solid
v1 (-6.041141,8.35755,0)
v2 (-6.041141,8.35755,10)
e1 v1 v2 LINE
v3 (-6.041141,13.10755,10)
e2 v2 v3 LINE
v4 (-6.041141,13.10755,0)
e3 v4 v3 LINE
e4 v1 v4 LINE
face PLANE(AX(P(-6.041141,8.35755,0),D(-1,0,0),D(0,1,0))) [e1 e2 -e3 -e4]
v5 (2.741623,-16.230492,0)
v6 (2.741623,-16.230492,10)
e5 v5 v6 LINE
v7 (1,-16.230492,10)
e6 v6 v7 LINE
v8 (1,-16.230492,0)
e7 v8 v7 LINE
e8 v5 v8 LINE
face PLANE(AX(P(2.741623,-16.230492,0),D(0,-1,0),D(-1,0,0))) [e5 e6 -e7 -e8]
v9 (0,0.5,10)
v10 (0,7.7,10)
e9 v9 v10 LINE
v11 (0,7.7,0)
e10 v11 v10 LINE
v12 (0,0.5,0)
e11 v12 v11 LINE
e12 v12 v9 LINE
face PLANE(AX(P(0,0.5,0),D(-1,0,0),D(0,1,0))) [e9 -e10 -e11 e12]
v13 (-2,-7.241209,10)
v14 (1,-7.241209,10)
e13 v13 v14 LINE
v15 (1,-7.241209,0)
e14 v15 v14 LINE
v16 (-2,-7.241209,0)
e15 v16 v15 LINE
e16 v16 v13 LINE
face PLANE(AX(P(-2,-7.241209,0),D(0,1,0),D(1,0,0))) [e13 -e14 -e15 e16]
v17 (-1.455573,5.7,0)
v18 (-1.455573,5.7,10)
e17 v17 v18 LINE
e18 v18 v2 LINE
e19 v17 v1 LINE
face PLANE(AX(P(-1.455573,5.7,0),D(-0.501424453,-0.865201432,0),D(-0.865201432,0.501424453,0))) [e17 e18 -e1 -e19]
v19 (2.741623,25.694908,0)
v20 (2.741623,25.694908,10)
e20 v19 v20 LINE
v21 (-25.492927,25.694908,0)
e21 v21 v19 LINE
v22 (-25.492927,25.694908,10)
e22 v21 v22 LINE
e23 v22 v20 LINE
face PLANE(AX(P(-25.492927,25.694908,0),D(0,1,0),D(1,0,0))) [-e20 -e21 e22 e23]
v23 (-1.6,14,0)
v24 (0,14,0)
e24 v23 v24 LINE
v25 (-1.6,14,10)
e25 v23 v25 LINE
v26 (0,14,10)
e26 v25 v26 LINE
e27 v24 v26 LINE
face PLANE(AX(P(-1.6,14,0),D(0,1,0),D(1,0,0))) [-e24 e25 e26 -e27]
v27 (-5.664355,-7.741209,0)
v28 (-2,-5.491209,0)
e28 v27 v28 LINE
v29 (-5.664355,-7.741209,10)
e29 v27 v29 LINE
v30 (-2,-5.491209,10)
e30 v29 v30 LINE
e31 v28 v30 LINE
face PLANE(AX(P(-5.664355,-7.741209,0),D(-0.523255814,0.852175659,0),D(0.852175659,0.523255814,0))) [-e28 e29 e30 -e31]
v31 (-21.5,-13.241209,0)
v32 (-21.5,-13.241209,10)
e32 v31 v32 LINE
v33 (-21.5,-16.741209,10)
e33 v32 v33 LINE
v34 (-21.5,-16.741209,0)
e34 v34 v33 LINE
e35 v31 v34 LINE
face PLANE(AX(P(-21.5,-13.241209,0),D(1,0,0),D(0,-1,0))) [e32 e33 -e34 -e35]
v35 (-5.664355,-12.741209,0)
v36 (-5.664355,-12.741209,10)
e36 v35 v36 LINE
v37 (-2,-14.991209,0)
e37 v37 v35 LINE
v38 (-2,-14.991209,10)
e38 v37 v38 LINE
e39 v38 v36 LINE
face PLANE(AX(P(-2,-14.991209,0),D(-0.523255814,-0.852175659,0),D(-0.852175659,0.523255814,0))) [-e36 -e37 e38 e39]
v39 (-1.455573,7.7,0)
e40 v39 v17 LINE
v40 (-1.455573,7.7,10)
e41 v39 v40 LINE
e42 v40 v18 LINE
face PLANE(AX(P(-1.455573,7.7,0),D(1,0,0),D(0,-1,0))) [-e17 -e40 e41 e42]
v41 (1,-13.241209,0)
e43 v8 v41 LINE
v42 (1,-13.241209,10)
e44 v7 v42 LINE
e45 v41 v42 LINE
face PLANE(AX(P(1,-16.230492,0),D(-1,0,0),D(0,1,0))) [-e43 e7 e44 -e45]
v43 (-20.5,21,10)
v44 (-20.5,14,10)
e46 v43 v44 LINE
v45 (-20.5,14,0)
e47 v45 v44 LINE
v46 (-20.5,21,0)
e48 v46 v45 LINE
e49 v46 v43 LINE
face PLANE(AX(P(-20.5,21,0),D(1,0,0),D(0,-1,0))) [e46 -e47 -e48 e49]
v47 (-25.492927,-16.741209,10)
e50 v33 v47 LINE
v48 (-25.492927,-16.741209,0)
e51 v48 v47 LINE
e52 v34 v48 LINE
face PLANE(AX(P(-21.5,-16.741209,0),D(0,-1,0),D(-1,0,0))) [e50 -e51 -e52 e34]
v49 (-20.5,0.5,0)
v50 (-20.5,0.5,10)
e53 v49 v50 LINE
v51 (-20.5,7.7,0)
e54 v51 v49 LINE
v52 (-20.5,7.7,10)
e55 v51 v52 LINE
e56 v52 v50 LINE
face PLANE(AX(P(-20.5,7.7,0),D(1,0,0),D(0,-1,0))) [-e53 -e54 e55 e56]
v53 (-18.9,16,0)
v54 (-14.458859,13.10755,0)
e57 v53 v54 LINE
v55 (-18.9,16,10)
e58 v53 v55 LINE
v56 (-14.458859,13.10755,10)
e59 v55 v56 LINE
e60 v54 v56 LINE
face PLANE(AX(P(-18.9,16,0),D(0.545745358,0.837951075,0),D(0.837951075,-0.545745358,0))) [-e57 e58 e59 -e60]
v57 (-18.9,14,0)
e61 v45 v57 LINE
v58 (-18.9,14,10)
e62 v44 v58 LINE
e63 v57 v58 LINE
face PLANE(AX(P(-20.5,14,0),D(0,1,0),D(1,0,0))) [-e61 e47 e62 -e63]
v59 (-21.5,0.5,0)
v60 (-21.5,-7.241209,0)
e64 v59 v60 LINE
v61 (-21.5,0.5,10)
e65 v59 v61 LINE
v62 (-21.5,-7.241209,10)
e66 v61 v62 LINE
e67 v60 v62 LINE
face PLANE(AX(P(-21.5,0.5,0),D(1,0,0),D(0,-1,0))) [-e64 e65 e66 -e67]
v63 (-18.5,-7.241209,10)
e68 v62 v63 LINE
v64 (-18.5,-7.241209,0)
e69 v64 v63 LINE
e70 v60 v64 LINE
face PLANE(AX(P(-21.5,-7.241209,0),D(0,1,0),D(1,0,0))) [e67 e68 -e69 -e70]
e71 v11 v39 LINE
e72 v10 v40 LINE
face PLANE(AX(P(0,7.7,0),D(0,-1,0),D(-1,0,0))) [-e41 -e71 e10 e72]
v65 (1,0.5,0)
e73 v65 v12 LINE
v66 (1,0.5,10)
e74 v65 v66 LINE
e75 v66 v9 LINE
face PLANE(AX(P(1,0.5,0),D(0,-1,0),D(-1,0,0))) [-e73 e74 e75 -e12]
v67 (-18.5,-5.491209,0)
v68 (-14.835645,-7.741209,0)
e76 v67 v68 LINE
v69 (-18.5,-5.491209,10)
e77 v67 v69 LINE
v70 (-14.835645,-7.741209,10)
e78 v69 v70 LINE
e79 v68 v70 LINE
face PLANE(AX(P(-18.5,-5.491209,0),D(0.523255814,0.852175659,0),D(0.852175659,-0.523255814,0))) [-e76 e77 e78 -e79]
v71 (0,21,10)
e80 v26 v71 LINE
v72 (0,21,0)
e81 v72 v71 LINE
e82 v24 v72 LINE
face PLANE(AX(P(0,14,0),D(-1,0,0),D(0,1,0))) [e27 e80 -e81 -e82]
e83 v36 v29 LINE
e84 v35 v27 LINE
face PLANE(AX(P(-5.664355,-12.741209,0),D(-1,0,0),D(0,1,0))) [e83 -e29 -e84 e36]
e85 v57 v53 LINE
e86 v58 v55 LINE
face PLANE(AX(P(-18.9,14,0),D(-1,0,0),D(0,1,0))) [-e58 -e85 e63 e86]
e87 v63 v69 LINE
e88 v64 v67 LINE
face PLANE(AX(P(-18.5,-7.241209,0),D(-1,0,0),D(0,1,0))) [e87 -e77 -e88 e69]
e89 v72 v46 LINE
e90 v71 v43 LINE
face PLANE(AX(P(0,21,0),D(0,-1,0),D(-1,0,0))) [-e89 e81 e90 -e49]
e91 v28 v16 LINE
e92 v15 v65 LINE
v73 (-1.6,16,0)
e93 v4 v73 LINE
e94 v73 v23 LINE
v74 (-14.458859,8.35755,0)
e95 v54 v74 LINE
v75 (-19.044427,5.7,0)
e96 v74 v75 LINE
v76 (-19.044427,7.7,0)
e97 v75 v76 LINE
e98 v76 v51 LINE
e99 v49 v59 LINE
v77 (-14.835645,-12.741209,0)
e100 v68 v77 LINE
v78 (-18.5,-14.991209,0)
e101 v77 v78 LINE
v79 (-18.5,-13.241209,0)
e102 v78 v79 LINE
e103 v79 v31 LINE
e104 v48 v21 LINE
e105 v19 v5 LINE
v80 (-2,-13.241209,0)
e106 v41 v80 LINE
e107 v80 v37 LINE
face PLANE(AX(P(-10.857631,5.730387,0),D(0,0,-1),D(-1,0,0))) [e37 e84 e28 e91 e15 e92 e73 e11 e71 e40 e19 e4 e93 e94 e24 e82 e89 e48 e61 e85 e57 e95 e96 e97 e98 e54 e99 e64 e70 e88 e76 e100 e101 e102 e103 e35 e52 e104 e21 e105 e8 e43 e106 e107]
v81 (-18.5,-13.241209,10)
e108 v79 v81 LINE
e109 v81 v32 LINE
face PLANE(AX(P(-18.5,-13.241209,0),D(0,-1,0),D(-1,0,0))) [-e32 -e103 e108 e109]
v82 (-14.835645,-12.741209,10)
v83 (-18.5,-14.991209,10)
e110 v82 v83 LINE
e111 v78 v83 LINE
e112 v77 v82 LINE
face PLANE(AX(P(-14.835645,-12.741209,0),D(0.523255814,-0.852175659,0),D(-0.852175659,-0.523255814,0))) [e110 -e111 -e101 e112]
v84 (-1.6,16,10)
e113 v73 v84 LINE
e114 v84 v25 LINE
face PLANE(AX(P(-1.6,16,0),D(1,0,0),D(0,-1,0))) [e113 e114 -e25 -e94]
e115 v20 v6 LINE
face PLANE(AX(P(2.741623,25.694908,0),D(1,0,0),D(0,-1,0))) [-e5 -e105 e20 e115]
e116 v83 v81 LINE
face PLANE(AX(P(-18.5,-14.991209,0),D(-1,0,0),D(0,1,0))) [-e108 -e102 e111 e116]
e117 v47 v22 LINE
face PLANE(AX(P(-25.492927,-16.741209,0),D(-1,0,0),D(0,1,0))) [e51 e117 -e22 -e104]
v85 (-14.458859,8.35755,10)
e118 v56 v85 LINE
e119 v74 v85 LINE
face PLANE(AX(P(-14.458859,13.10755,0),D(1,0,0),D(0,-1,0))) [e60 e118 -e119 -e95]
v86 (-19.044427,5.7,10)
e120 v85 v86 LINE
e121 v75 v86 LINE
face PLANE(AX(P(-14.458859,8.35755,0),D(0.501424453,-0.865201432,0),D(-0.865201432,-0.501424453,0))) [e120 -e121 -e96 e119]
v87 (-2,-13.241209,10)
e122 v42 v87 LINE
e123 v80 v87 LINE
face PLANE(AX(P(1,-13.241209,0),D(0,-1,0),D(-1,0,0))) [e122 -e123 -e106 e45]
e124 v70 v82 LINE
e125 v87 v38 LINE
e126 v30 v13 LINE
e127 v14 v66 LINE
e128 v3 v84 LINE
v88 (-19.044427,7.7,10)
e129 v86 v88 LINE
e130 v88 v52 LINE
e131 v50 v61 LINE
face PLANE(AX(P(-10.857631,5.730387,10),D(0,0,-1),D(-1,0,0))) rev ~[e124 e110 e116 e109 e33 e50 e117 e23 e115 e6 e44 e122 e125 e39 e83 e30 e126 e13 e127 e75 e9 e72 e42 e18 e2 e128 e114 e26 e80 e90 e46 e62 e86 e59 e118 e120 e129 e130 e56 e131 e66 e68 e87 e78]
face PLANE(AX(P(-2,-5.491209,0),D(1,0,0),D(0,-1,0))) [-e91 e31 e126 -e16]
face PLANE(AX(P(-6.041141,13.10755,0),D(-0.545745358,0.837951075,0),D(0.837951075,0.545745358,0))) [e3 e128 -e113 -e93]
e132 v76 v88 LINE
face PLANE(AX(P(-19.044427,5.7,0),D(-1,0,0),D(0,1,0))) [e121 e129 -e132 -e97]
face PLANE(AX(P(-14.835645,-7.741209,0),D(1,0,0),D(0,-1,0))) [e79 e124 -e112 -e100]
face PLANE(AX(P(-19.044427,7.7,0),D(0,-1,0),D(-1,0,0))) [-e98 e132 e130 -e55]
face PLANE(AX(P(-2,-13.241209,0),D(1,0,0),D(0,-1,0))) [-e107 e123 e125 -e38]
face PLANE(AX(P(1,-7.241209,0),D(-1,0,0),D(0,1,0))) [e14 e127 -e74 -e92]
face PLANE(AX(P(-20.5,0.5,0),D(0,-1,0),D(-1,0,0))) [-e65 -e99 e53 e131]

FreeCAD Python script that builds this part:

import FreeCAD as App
import Part
import Sketcher
Q = App.Units.Quantity

doc = App.newDocument("Part")
params = doc.addObject("Spreadsheet::Sheet", "Params")
for row, (alias, value) in enumerate([
    ("sketch1_width", "3 mm"),
    ("sketch1_width2", "1 mm"),
    ("sketch1_height", "5 mm"),
    ("sketch1_height2", "2 mm"),
    ("sketch1_height3", "7 mm"),
    ("pad1_length", "10 mm"),
], start=1):
    params.set(f"A{row}", alias)
    params.set(f"B{row}", "=" + value)
    params.setAlias(f"B{row}", alias)

body = doc.addObject("PartDesign::Body", "Body")

# Sketch on XY plane
sketch1 = doc.addObject("Sketcher::SketchObject", "Sketch")
body.addObject(sketch1)
sketch1.AttachmentSupport = (doc.XY_Plane, [""])
sketch1.MapMode = "FlatFace"
sketch1.addGeometry([
    Part.LineSegment(App.Vector(-25.5, 25.7, 0), App.Vector(-25.5, -16.7, 0)),  # 0
    Part.LineSegment(App.Vector(-25.5, -16.7, 0), App.Vector(-21.5, -16.7, 0)),  # 1
    Part.LineSegment(App.Vector(-21.5, -16.7, 0), App.Vector(-21.5, -13.2, 0)),  # 2
    Part.LineSegment(App.Vector(-21.5, -13.2, 0), App.Vector(-18.5, -13.2, 0)),  # 3
    Part.LineSegment(App.Vector(-18.5, -13.2, 0), App.Vector(-18.5, -15, 0)),  # 4
    Part.LineSegment(App.Vector(-18.5, -15, 0), App.Vector(-14.8, -12.7, 0)),  # 5
    Part.LineSegment(App.Vector(-14.8, -12.7, 0), App.Vector(-14.8, -7.7, 0)),  # 6
    Part.LineSegment(App.Vector(-14.8, -7.7, 0), App.Vector(-18.5, -5.5, 0)),  # 7
    Part.LineSegment(App.Vector(-18.5, -5.5, 0), App.Vector(-18.5, -7.2, 0)),  # 8
    Part.LineSegment(App.Vector(-18.5, -7.2, 0), App.Vector(-21.5, -7.2, 0)),  # 9
    Part.LineSegment(App.Vector(-21.5, -7.2, 0), App.Vector(-21.5, 0.5, 0)),  # 10
    Part.LineSegment(App.Vector(-21.5, 0.5, 0), App.Vector(-20.5, 0.5, 0)),  # 11
    Part.LineSegment(App.Vector(-20.5, 0.5, 0), App.Vector(-20.5, 7.7, 0)),  # 12
    Part.LineSegment(App.Vector(-20.5, 7.7, 0), App.Vector(-19, 7.7, 0)),  # 13
    Part.LineSegment(App.Vector(-19, 7.7, 0), App.Vector(-19, 5.7, 0)),  # 14
    Part.LineSegment(App.Vector(-19, 5.7, 0), App.Vector(-14.5, 8.4, 0)),  # 15
    Part.LineSegment(App.Vector(-14.5, 8.4, 0), App.Vector(-14.5, 13.1, 0)),  # 16
    Part.LineSegment(App.Vector(-14.5, 13.1, 0), App.Vector(-18.9, 16, 0)),  # 17
    Part.LineSegment(App.Vector(-18.9, 16, 0), App.Vector(-18.9, 14, 0)),  # 18
    Part.LineSegment(App.Vector(-18.9, 14, 0), App.Vector(-20.5, 14, 0)),  # 19
    Part.LineSegment(App.Vector(-20.5, 14, 0), App.Vector(-20.5, 21, 0)),  # 20
    Part.LineSegment(App.Vector(-20.5, 21, 0), App.Vector(0, 21, 0)),  # 21
    Part.LineSegment(App.Vector(0, 21, 0), App.Vector(0, 14, 0)),  # 22
    Part.LineSegment(App.Vector(0, 14, 0), App.Vector(-1.6, 14, 0)),  # 23
    Part.LineSegment(App.Vector(-1.6, 14, 0), App.Vector(-1.6, 16, 0)),  # 24
    Part.LineSegment(App.Vector(-1.6, 16, 0), App.Vector(-6, 13.1, 0)),  # 25
    Part.LineSegment(App.Vector(-6, 13.1, 0), App.Vector(-6, 8.4, 0)),  # 26
    Part.LineSegment(App.Vector(-6, 8.4, 0), App.Vector(-1.5, 5.7, 0)),  # 27
    Part.LineSegment(App.Vector(-1.5, 5.7, 0), App.Vector(-1.5, 7.7, 0)),  # 28
    Part.LineSegment(App.Vector(-1.5, 7.7, 0), App.Vector(0, 7.7, 0)),  # 29
    Part.LineSegment(App.Vector(0, 7.7, 0), App.Vector(0, 0.5, 0)),  # 30
    Part.LineSegment(App.Vector(0, 0.5, 0), App.Vector(1, 0.5, 0)),  # 31
    Part.LineSegment(App.Vector(1, 0.5, 0), App.Vector(1, -7.2, 0)),  # 32
    Part.LineSegment(App.Vector(1, -7.2, 0), App.Vector(-2, -7.2, 0)),  # 33
    Part.LineSegment(App.Vector(-2, -7.2, 0), App.Vector(-2, -5.5, 0)),  # 34
    Part.LineSegment(App.Vector(-2, -5.5, 0), App.Vector(-5.7, -7.7, 0)),  # 35
    Part.LineSegment(App.Vector(-5.7, -7.7, 0), App.Vector(-5.7, -12.7, 0)),  # 36
    Part.LineSegment(App.Vector(-5.7, -12.7, 0), App.Vector(-2, -15, 0)),  # 37
    Part.LineSegment(App.Vector(-2, -15, 0), App.Vector(-2, -13.2, 0)),  # 38
    Part.LineSegment(App.Vector(-2, -13.2, 0), App.Vector(1, -13.2, 0)),  # 39
    Part.LineSegment(App.Vector(1, -13.2, 0), App.Vector(1, -16.2, 0)),  # 40
    Part.LineSegment(App.Vector(1, -16.2, 0), App.Vector(2.7, -16.2, 0)),  # 41
    Part.LineSegment(App.Vector(2.7, -16.2, 0), App.Vector(2.7, 25.7, 0)),  # 42
    Part.LineSegment(App.Vector(2.7, 25.7, 0), App.Vector(-25.5, 25.7, 0)),  # 43
], False)
sketch1.addConstraint([
    Sketcher.Constraint("Coincident", 0, 2, 1, 1),
    Sketcher.Constraint("Coincident", 1, 2, 2, 1),
    Sketcher.Constraint("Coincident", 2, 2, 3, 1),
    Sketcher.Constraint("Coincident", 3, 2, 4, 1),
    Sketcher.Constraint("Coincident", 4, 2, 5, 1),
    Sketcher.Constraint("Coincident", 5, 2, 6, 1),
    Sketcher.Constraint("Coincident", 6, 2, 7, 1),
    Sketcher.Constraint("Coincident", 7, 2, 8, 1),
    Sketcher.Constraint("Coincident", 8, 2, 9, 1),
    Sketcher.Constraint("Coincident", 9, 2, 10, 1),
    Sketcher.Constraint("Coincident", 10, 2, 11, 1),
    Sketcher.Constraint("Coincident", 11, 2, 12, 1),
    Sketcher.Constraint("Coincident", 12, 2, 13, 1),
    Sketcher.Constraint("Coincident", 13, 2, 14, 1),
    Sketcher.Constraint("Coincident", 14, 2, 15, 1),
    Sketcher.Constraint("Coincident", 15, 2, 16, 1),
    Sketcher.Constraint("Coincident", 16, 2, 17, 1),
    Sketcher.Constraint("Coincident", 17, 2, 18, 1),
    Sketcher.Constraint("Coincident", 18, 2, 19, 1),
    Sketcher.Constraint("Coincident", 19, 2, 20, 1),
    Sketcher.Constraint("Coincident", 20, 2, 21, 1),
    Sketcher.Constraint("Coincident", 21, 2, 22, 1),
    Sketcher.Constraint("Coincident", 22, 2, 23, 1),
    Sketcher.Constraint("Coincident", 23, 2, 24, 1),
    Sketcher.Constraint("Coincident", 24, 2, 25, 1),
    Sketcher.Constraint("Coincident", 25, 2, 26, 1),
    Sketcher.Constraint("Coincident", 26, 2, 27, 1),
    Sketcher.Constraint("Coincident", 27, 2, 28, 1),
    Sketcher.Constraint("Coincident", 28, 2, 29, 1),
    Sketcher.Constraint("Coincident", 29, 2, 30, 1),
    Sketcher.Constraint("Coincident", 30, 2, 31, 1),
    Sketcher.Constraint("Coincident", 31, 2, 32, 1),
    Sketcher.Constraint("Coincident", 32, 2, 33, 1),
    Sketcher.Constraint("Coincident", 33, 2, 34, 1),
    Sketcher.Constraint("Coincident", 34, 2, 35, 1),
    Sketcher.Constraint("Coincident", 35, 2, 36, 1),
    Sketcher.Constraint("Coincident", 36, 2, 37, 1),
    Sketcher.Constraint("Coincident", 37, 2, 38, 1),
    Sketcher.Constraint("Coincident", 38, 2, 39, 1),
    Sketcher.Constraint("Coincident", 39, 2, 40, 1),
    Sketcher.Constraint("Coincident", 40, 2, 41, 1),
    Sketcher.Constraint("Coincident", 41, 2, 42, 1),
    Sketcher.Constraint("Coincident", 42, 2, 43, 1),
    Sketcher.Constraint("Coincident", 43, 2, 0, 1),
    Sketcher.Constraint("Vertical", 0),
    Sketcher.Constraint("Horizontal", 1),
    Sketcher.Constraint("Vertical", 2),
    Sketcher.Constraint("Horizontal", 3),
    Sketcher.Constraint("Vertical", 4),
    Sketcher.Constraint("Vertical", 6),
    Sketcher.Constraint("Vertical", 8),
    Sketcher.Constraint("Horizontal", 9),
    Sketcher.Constraint("Vertical", 10),
    Sketcher.Constraint("Horizontal", 11),
    Sketcher.Constraint("Vertical", 12),
    Sketcher.Constraint("Horizontal", 13),
    Sketcher.Constraint("Vertical", 14),
    Sketcher.Constraint("Vertical", 16),
    Sketcher.Constraint("Vertical", 18),
    Sketcher.Constraint("Horizontal", 19),
    Sketcher.Constraint("Vertical", 20),
    Sketcher.Constraint("Horizontal", 21),
    Sketcher.Constraint("Vertical", 22),
    Sketcher.Constraint("Horizontal", 23),
    Sketcher.Constraint("Vertical", 24),
    Sketcher.Constraint("Vertical", 26),
    Sketcher.Constraint("Vertical", 28),
    Sketcher.Constraint("Horizontal", 29),
    Sketcher.Constraint("Vertical", 30),
    Sketcher.Constraint("Horizontal", 31),
    Sketcher.Constraint("Vertical", 32),
    Sketcher.Constraint("Horizontal", 33),
    Sketcher.Constraint("Vertical", 34),
    Sketcher.Constraint("Vertical", 36),
    Sketcher.Constraint("Vertical", 38),
    Sketcher.Constraint("Horizontal", 39),
    Sketcher.Constraint("Vertical", 40),
    Sketcher.Constraint("Horizontal", 41),
    Sketcher.Constraint("Vertical", 42),
    Sketcher.Constraint("Horizontal", 43),
    Sketcher.Constraint("PointOnObject", 21, 2, -2),
    Sketcher.Constraint("PointOnObject", 29, 2, -2),
    Sketcher.Constraint("Parallel", 5, 35),
    Sketcher.Constraint("Parallel", 7, 37),
    Sketcher.Constraint("Horizontal", 19, 2, 22, 2),
    Sketcher.Constraint("Horizontal", 17, 2, 24, 2),
    Sketcher.Constraint("Horizontal", 16, 2, 25, 2),
    Sketcher.Constraint("Horizontal", 15, 2, 26, 2),
    Sketcher.Constraint("Horizontal", 14, 2, 27, 2),
    Sketcher.Constraint("Horizontal", 13, 2, 28, 2),
    Sketcher.Constraint("Horizontal", 11, 2, 30, 2),
    Sketcher.Constraint("Horizontal", 9, 2, 32, 2),
    Sketcher.Constraint("Horizontal", 7, 2, 34, 2),
    Sketcher.Constraint("Horizontal", 6, 2, 35, 2),
    Sketcher.Constraint("Horizontal", 5, 2, 36, 2),
    Sketcher.Constraint("Horizontal", 4, 2, 37, 2),
    Sketcher.Constraint("Horizontal", 3, 2, 38, 2),
    Sketcher.Constraint("Vertical", 4, 2, 7, 2),
    Sketcher.Constraint("Vertical", 2, 2, 9, 2),
    Sketcher.Constraint("Vertical", 12, 2, 19, 2),
    Sketcher.Constraint("Vertical", 34, 2, 37, 2),
    Sketcher.Constraint("Vertical", 32, 2, 39, 2),
    Sketcher.Constraint("Equal", 19, 23),
    Sketcher.Constraint("Equal", 13, 29),
    Sketcher.Constraint("Equal", 11, 31),
    Sketcher.Constraint("Equal", 9, 33),
    Sketcher.Constraint("Equal", 4, 8),
    Sketcher.Constraint("Equal", 14, 18),
    Sketcher.Constraint("Equal", 15, 17),
    Sketcher.Constraint("Equal", 17, 25),
    Sketcher.Constraint("DistanceX", 3, 1, 3, 2, Q("3 mm")),
    Sketcher.Constraint("DistanceX", 11, 1, 11, 2, Q("1 mm")),
    Sketcher.Constraint("DistanceY", 6, 1, 6, 2, Q("5 mm")),
    Sketcher.Constraint("DistanceY", 14, 2, 14, 1, Q("2 mm")),
    Sketcher.Constraint("DistanceY", 20, 1, 20, 2, Q("7 mm")),
    Sketcher.Constraint("DistanceX", 19, 2, 19, 1, Q("1.6 mm")),
    Sketcher.Constraint("DistanceX", 21, 1, 21, 2, Q("20.5 mm")),
    Sketcher.Constraint("DistanceY", 2, 1, 2, 2, Q("3.5 mm")),
    Sketcher.Constraint("DistanceY", 12, 1, 12, 2, Q("7.2 mm")),
    Sketcher.Constraint("DistanceY", -1, 1, 17, 2, Q("16 mm")),
    Sketcher.Constraint("DistanceY", 1, 2, 5, 2, Q("4 mm")),
    Sketcher.Constraint("Distance", 5, Q("4.3 mm")),
    Sketcher.Constraint("Distance", 15, Q("5.3 mm")),
    Sketcher.Constraint("DistanceY", 4, 2, 4, 1, Q("1.75 mm")),
    Sketcher.Constraint("DistanceY", 16, 1, 16, 2, Q("4.75 mm")),
    Sketcher.Constraint("DistanceY", -1, 1, 10, 2, Q("0.5 mm")),
    Sketcher.Constraint("DistanceY", 42, 1, 42, 2, Q("41.9254 mm")),
    Sketcher.Constraint("DistanceX", 43, 2, 43, 1, Q("28.23455 mm")),
    Sketcher.Constraint("DistanceY", 10, 1, 10, 2, Q("7.741209 mm")),
    Sketcher.Constraint("DistanceX", 1, 1, 1, 2, Q("3.992927 mm")),
    Sketcher.Constraint("DistanceX", 13, 1, 13, 2, Q("1.455573 mm")),
    Sketcher.Constraint("DistanceY", 0, 2, 0, 1, Q("42.436117 mm")),
])
sketch1.setExpression("Constraints[110]", "Params.sketch1_width")
sketch1.setExpression("Constraints[111]", "Params.sketch1_width2")
sketch1.setExpression("Constraints[112]", "Params.sketch1_height")
sketch1.setExpression("Constraints[113]", "Params.sketch1_height2")
sketch1.setExpression("Constraints[114]", "Params.sketch1_height3")
pad1 = doc.addObject("PartDesign::Pad", "Pad")
body.addObject(pad1)
pad1.Profile = sketch1
pad1.setExpression("Length", "Params.pad1_length")

doc.recompute()
